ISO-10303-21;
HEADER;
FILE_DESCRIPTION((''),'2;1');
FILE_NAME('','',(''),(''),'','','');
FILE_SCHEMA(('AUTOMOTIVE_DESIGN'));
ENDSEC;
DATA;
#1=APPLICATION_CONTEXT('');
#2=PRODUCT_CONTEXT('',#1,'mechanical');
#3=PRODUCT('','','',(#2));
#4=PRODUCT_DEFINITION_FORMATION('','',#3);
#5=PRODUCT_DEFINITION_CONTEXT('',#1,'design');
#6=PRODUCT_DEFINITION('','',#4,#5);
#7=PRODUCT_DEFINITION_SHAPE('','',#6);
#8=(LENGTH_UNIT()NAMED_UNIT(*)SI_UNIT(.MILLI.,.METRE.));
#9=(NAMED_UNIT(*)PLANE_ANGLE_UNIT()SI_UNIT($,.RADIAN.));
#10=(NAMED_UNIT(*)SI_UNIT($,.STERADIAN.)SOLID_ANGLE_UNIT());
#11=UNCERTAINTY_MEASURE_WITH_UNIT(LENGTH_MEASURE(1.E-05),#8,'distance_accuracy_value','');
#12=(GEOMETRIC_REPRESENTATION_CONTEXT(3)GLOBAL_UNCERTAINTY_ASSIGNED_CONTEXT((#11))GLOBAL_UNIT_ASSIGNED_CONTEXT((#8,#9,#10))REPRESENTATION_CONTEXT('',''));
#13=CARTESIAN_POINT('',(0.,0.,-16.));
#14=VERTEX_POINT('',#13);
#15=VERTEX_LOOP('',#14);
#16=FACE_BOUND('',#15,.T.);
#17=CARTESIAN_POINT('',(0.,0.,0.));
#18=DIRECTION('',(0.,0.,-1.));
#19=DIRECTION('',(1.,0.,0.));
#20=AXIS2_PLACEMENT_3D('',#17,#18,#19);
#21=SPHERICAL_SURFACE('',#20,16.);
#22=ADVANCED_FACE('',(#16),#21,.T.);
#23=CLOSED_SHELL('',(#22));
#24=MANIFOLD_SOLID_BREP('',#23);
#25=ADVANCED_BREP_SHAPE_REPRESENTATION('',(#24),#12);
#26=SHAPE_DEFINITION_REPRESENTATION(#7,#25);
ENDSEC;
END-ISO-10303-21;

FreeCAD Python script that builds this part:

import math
import FreeCAD as App
import Part
import Sketcher

V = App.Vector
Q = App.Units.Quantity

doc = App.newDocument("Part")
body = doc.addObject("PartDesign::Body", "Body")

# Sketch on XZ plane
sketch1 = body.newObject("Sketcher::SketchObject", "Sketch")
sketch1.AttachmentSupport = (doc.getObject("XZ_Plane"), [""])
sketch1.MapMode = "FlatFace"
sketch1.addGeometry([
    Part.LineSegment(V(0, -16, 0), V(0, 16, 0)),
    Part.ArcOfCircle(Part.Circle(V(0, 0, 0), V(0, 0, 1), 16), math.radians(-90), math.radians(90)),
], False)
sketch1.addConstraint([
    Sketcher.Constraint("Coincident", 0, 1, 1, 1),
    Sketcher.Constraint("Coincident", 1, 2, 0, 2),
    Sketcher.Constraint("Vertical", 0),
    Sketcher.Constraint("Coincident", 1, 3, -1, 1),
    Sketcher.Constraint("PointOnObject", 0, 1, -2),
    Sketcher.Constraint("Radius", 1, Q("16 mm")),
])
revolution = body.newObject("PartDesign::Revolution", "Revolution")
revolution.Profile = sketch1
revolution.ReferenceAxis = (sketch1, ["V_Axis"])
revolution.Angle = 360

doc.recompute()
